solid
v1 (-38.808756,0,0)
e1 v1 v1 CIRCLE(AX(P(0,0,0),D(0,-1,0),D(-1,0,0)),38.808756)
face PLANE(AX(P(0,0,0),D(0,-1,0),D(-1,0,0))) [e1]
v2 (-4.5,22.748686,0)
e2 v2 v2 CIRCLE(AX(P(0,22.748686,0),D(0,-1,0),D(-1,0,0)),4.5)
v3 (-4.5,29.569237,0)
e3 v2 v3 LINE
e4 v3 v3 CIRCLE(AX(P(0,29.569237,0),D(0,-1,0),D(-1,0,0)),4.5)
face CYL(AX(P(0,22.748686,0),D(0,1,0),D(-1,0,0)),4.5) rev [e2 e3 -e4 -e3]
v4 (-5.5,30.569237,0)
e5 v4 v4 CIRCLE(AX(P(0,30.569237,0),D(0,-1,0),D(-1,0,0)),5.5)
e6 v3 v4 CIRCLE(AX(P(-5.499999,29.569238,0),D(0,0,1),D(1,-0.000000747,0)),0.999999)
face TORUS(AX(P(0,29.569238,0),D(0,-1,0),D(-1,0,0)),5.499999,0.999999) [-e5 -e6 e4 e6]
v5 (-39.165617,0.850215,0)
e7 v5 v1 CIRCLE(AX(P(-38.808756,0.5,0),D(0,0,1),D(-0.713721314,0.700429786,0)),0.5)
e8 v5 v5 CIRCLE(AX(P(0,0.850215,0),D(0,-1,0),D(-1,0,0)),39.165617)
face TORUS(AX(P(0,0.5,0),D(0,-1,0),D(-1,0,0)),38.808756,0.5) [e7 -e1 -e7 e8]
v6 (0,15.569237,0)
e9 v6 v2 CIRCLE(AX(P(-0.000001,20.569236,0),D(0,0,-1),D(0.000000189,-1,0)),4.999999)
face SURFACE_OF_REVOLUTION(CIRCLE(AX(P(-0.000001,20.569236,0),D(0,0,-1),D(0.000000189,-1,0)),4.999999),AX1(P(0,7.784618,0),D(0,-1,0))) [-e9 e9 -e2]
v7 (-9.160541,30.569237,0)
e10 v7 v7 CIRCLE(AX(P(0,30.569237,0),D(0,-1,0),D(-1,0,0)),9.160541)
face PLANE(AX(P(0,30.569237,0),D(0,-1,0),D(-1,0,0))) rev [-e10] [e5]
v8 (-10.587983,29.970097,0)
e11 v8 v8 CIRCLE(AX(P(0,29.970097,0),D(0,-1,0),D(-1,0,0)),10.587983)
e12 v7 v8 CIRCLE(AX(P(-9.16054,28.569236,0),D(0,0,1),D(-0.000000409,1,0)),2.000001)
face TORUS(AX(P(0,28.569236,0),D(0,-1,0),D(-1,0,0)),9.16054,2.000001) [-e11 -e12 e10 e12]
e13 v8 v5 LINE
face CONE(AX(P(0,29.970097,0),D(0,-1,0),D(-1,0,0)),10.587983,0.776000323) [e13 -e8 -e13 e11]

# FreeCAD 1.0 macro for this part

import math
import FreeCAD as App
import Part
import Sketcher

doc = App.newDocument("Part")
body = doc.addObject("PartDesign::Body", "Body")

# Sketch on XY plane
sketch1 = body.newObject("Sketcher::SketchObject", "Sketch")
sketch1.AttachmentSupport = (doc.getObject("XY_Plane"), [""])
sketch1.MapMode = "FlatFace"
sketch1.addGeometry(Part.LineSegment(App.Vector(-10.6, 30, 0), App.Vector(-39.2, 0.9, 0)), False)
sketch1.addGeometry(Part.ArcOfCircle(Part.Circle(App.Vector(-38.8, 0.5, 0), App.Vector(0, 0, 1), 0.5), math.radians(136), math.radians(270)), False)
sketch1.addGeometry(Part.LineSegment(App.Vector(-38.8, 0, 0), App.Vector(0, 0, 0)), False)
sketch1.addGeometry(Part.LineSegment(App.Vector(0, 0, 0), App.Vector(0, 15.6, 0)), False)
sketch1.addGeometry(Part.ArcOfCircle(Part.Circle(App.Vector(0, 20.6, 0), App.Vector(0, 0, 1), 5), math.radians(154), math.radians(270)), False)
sketch1.addGeometry(Part.LineSegment(App.Vector(-4.5, 22.7, 0), App.Vector(-4.5, 29.6, 0)), False)
sketch1.addGeometry(Part.ArcOfCircle(Part.Circle(App.Vector(-5.5, 29.6, 0), App.Vector(0, 0, 1), 1), math.radians(0), math.radians(90)), False)
sketch1.addGeometry(Part.LineSegment(App.Vector(-5.5, 30.6, 0), App.Vector(-9.2, 30.6, 0)), False)
sketch1.addGeometry(Part.ArcOfCircle(Part.Circle(App.Vector(-9.2, 28.6, 0), App.Vector(0, 0, 1), 2), math.radians(90), math.radians(136)), False)
sketch1.addConstraint(Sketcher.Constraint("Tangent", 0, 2, 1, 1))
sketch1.addConstraint(Sketcher.Constraint("Tangent", 1, 2, 2, 1))
sketch1.addConstraint(Sketcher.Constraint("Coincident", 2, 2, 3, 1))
sketch1.addConstraint(Sketcher.Constraint("Coincident", 3, 2, 4, 2))
sketch1.addConstraint(Sketcher.Constraint("Coincident", 4, 1, 5, 1))
sketch1.addConstraint(Sketcher.Constraint("Tangent", 5, 2, 6, 1))
sketch1.addConstraint(Sketcher.Constraint("Tangent", 6, 2, 7, 1))
sketch1.addConstraint(Sketcher.Constraint("Tangent", 7, 2, 8, 1))
sketch1.addConstraint(Sketcher.Constraint("Tangent", 8, 2, 0, 1))
sketch1.addConstraint(Sketcher.Constraint("Horizontal", 2))
sketch1.addConstraint(Sketcher.Constraint("Vertical", 3))
sketch1.addConstraint(Sketcher.Constraint("Vertical", 5))
sketch1.addConstraint(Sketcher.Constraint("Horizontal", 7))
sketch1.addConstraint(Sketcher.Constraint("Coincident", 2, 2, -1, 1))
sketch1.addConstraint(Sketcher.Constraint("PointOnObject", 4, 3, -2))
sketch1.addConstraint(Sketcher.Constraint("Radius", 4, 4.999999))
sketch1.addConstraint(Sketcher.Constraint("Radius", 6, 0.999999))
sketch1.addConstraint(Sketcher.Constraint("Radius", 8, 2.000001))
sketch1.addConstraint(Sketcher.Constraint("Radius", 1, 0.5))
sketch1.addConstraint(Sketcher.Constraint("DistanceY", 4, 3, 6, 3, 9.000001))
sketch1.addConstraint(Sketcher.Constraint("DistanceX", 6, 3, -1, 1, 5.499999))
sketch1.addConstraint(Sketcher.Constraint("DistanceX", 7, 2, 7, 1, 3.660541))
sketch1.addConstraint(Sketcher.Constraint("DistanceX", 2, 1, 2, 2, 38.808756))
sketch1.addConstraint(Sketcher.Constraint("DistanceY", 3, 1, 3, 2, 15.569237))
revolution = body.newObject("PartDesign::Revolution", "Revolution")
revolution.Profile = sketch1
revolution.ReferenceAxis = (sketch1, ["V_Axis"])
revolution.Angle = 360

doc.recompute()
